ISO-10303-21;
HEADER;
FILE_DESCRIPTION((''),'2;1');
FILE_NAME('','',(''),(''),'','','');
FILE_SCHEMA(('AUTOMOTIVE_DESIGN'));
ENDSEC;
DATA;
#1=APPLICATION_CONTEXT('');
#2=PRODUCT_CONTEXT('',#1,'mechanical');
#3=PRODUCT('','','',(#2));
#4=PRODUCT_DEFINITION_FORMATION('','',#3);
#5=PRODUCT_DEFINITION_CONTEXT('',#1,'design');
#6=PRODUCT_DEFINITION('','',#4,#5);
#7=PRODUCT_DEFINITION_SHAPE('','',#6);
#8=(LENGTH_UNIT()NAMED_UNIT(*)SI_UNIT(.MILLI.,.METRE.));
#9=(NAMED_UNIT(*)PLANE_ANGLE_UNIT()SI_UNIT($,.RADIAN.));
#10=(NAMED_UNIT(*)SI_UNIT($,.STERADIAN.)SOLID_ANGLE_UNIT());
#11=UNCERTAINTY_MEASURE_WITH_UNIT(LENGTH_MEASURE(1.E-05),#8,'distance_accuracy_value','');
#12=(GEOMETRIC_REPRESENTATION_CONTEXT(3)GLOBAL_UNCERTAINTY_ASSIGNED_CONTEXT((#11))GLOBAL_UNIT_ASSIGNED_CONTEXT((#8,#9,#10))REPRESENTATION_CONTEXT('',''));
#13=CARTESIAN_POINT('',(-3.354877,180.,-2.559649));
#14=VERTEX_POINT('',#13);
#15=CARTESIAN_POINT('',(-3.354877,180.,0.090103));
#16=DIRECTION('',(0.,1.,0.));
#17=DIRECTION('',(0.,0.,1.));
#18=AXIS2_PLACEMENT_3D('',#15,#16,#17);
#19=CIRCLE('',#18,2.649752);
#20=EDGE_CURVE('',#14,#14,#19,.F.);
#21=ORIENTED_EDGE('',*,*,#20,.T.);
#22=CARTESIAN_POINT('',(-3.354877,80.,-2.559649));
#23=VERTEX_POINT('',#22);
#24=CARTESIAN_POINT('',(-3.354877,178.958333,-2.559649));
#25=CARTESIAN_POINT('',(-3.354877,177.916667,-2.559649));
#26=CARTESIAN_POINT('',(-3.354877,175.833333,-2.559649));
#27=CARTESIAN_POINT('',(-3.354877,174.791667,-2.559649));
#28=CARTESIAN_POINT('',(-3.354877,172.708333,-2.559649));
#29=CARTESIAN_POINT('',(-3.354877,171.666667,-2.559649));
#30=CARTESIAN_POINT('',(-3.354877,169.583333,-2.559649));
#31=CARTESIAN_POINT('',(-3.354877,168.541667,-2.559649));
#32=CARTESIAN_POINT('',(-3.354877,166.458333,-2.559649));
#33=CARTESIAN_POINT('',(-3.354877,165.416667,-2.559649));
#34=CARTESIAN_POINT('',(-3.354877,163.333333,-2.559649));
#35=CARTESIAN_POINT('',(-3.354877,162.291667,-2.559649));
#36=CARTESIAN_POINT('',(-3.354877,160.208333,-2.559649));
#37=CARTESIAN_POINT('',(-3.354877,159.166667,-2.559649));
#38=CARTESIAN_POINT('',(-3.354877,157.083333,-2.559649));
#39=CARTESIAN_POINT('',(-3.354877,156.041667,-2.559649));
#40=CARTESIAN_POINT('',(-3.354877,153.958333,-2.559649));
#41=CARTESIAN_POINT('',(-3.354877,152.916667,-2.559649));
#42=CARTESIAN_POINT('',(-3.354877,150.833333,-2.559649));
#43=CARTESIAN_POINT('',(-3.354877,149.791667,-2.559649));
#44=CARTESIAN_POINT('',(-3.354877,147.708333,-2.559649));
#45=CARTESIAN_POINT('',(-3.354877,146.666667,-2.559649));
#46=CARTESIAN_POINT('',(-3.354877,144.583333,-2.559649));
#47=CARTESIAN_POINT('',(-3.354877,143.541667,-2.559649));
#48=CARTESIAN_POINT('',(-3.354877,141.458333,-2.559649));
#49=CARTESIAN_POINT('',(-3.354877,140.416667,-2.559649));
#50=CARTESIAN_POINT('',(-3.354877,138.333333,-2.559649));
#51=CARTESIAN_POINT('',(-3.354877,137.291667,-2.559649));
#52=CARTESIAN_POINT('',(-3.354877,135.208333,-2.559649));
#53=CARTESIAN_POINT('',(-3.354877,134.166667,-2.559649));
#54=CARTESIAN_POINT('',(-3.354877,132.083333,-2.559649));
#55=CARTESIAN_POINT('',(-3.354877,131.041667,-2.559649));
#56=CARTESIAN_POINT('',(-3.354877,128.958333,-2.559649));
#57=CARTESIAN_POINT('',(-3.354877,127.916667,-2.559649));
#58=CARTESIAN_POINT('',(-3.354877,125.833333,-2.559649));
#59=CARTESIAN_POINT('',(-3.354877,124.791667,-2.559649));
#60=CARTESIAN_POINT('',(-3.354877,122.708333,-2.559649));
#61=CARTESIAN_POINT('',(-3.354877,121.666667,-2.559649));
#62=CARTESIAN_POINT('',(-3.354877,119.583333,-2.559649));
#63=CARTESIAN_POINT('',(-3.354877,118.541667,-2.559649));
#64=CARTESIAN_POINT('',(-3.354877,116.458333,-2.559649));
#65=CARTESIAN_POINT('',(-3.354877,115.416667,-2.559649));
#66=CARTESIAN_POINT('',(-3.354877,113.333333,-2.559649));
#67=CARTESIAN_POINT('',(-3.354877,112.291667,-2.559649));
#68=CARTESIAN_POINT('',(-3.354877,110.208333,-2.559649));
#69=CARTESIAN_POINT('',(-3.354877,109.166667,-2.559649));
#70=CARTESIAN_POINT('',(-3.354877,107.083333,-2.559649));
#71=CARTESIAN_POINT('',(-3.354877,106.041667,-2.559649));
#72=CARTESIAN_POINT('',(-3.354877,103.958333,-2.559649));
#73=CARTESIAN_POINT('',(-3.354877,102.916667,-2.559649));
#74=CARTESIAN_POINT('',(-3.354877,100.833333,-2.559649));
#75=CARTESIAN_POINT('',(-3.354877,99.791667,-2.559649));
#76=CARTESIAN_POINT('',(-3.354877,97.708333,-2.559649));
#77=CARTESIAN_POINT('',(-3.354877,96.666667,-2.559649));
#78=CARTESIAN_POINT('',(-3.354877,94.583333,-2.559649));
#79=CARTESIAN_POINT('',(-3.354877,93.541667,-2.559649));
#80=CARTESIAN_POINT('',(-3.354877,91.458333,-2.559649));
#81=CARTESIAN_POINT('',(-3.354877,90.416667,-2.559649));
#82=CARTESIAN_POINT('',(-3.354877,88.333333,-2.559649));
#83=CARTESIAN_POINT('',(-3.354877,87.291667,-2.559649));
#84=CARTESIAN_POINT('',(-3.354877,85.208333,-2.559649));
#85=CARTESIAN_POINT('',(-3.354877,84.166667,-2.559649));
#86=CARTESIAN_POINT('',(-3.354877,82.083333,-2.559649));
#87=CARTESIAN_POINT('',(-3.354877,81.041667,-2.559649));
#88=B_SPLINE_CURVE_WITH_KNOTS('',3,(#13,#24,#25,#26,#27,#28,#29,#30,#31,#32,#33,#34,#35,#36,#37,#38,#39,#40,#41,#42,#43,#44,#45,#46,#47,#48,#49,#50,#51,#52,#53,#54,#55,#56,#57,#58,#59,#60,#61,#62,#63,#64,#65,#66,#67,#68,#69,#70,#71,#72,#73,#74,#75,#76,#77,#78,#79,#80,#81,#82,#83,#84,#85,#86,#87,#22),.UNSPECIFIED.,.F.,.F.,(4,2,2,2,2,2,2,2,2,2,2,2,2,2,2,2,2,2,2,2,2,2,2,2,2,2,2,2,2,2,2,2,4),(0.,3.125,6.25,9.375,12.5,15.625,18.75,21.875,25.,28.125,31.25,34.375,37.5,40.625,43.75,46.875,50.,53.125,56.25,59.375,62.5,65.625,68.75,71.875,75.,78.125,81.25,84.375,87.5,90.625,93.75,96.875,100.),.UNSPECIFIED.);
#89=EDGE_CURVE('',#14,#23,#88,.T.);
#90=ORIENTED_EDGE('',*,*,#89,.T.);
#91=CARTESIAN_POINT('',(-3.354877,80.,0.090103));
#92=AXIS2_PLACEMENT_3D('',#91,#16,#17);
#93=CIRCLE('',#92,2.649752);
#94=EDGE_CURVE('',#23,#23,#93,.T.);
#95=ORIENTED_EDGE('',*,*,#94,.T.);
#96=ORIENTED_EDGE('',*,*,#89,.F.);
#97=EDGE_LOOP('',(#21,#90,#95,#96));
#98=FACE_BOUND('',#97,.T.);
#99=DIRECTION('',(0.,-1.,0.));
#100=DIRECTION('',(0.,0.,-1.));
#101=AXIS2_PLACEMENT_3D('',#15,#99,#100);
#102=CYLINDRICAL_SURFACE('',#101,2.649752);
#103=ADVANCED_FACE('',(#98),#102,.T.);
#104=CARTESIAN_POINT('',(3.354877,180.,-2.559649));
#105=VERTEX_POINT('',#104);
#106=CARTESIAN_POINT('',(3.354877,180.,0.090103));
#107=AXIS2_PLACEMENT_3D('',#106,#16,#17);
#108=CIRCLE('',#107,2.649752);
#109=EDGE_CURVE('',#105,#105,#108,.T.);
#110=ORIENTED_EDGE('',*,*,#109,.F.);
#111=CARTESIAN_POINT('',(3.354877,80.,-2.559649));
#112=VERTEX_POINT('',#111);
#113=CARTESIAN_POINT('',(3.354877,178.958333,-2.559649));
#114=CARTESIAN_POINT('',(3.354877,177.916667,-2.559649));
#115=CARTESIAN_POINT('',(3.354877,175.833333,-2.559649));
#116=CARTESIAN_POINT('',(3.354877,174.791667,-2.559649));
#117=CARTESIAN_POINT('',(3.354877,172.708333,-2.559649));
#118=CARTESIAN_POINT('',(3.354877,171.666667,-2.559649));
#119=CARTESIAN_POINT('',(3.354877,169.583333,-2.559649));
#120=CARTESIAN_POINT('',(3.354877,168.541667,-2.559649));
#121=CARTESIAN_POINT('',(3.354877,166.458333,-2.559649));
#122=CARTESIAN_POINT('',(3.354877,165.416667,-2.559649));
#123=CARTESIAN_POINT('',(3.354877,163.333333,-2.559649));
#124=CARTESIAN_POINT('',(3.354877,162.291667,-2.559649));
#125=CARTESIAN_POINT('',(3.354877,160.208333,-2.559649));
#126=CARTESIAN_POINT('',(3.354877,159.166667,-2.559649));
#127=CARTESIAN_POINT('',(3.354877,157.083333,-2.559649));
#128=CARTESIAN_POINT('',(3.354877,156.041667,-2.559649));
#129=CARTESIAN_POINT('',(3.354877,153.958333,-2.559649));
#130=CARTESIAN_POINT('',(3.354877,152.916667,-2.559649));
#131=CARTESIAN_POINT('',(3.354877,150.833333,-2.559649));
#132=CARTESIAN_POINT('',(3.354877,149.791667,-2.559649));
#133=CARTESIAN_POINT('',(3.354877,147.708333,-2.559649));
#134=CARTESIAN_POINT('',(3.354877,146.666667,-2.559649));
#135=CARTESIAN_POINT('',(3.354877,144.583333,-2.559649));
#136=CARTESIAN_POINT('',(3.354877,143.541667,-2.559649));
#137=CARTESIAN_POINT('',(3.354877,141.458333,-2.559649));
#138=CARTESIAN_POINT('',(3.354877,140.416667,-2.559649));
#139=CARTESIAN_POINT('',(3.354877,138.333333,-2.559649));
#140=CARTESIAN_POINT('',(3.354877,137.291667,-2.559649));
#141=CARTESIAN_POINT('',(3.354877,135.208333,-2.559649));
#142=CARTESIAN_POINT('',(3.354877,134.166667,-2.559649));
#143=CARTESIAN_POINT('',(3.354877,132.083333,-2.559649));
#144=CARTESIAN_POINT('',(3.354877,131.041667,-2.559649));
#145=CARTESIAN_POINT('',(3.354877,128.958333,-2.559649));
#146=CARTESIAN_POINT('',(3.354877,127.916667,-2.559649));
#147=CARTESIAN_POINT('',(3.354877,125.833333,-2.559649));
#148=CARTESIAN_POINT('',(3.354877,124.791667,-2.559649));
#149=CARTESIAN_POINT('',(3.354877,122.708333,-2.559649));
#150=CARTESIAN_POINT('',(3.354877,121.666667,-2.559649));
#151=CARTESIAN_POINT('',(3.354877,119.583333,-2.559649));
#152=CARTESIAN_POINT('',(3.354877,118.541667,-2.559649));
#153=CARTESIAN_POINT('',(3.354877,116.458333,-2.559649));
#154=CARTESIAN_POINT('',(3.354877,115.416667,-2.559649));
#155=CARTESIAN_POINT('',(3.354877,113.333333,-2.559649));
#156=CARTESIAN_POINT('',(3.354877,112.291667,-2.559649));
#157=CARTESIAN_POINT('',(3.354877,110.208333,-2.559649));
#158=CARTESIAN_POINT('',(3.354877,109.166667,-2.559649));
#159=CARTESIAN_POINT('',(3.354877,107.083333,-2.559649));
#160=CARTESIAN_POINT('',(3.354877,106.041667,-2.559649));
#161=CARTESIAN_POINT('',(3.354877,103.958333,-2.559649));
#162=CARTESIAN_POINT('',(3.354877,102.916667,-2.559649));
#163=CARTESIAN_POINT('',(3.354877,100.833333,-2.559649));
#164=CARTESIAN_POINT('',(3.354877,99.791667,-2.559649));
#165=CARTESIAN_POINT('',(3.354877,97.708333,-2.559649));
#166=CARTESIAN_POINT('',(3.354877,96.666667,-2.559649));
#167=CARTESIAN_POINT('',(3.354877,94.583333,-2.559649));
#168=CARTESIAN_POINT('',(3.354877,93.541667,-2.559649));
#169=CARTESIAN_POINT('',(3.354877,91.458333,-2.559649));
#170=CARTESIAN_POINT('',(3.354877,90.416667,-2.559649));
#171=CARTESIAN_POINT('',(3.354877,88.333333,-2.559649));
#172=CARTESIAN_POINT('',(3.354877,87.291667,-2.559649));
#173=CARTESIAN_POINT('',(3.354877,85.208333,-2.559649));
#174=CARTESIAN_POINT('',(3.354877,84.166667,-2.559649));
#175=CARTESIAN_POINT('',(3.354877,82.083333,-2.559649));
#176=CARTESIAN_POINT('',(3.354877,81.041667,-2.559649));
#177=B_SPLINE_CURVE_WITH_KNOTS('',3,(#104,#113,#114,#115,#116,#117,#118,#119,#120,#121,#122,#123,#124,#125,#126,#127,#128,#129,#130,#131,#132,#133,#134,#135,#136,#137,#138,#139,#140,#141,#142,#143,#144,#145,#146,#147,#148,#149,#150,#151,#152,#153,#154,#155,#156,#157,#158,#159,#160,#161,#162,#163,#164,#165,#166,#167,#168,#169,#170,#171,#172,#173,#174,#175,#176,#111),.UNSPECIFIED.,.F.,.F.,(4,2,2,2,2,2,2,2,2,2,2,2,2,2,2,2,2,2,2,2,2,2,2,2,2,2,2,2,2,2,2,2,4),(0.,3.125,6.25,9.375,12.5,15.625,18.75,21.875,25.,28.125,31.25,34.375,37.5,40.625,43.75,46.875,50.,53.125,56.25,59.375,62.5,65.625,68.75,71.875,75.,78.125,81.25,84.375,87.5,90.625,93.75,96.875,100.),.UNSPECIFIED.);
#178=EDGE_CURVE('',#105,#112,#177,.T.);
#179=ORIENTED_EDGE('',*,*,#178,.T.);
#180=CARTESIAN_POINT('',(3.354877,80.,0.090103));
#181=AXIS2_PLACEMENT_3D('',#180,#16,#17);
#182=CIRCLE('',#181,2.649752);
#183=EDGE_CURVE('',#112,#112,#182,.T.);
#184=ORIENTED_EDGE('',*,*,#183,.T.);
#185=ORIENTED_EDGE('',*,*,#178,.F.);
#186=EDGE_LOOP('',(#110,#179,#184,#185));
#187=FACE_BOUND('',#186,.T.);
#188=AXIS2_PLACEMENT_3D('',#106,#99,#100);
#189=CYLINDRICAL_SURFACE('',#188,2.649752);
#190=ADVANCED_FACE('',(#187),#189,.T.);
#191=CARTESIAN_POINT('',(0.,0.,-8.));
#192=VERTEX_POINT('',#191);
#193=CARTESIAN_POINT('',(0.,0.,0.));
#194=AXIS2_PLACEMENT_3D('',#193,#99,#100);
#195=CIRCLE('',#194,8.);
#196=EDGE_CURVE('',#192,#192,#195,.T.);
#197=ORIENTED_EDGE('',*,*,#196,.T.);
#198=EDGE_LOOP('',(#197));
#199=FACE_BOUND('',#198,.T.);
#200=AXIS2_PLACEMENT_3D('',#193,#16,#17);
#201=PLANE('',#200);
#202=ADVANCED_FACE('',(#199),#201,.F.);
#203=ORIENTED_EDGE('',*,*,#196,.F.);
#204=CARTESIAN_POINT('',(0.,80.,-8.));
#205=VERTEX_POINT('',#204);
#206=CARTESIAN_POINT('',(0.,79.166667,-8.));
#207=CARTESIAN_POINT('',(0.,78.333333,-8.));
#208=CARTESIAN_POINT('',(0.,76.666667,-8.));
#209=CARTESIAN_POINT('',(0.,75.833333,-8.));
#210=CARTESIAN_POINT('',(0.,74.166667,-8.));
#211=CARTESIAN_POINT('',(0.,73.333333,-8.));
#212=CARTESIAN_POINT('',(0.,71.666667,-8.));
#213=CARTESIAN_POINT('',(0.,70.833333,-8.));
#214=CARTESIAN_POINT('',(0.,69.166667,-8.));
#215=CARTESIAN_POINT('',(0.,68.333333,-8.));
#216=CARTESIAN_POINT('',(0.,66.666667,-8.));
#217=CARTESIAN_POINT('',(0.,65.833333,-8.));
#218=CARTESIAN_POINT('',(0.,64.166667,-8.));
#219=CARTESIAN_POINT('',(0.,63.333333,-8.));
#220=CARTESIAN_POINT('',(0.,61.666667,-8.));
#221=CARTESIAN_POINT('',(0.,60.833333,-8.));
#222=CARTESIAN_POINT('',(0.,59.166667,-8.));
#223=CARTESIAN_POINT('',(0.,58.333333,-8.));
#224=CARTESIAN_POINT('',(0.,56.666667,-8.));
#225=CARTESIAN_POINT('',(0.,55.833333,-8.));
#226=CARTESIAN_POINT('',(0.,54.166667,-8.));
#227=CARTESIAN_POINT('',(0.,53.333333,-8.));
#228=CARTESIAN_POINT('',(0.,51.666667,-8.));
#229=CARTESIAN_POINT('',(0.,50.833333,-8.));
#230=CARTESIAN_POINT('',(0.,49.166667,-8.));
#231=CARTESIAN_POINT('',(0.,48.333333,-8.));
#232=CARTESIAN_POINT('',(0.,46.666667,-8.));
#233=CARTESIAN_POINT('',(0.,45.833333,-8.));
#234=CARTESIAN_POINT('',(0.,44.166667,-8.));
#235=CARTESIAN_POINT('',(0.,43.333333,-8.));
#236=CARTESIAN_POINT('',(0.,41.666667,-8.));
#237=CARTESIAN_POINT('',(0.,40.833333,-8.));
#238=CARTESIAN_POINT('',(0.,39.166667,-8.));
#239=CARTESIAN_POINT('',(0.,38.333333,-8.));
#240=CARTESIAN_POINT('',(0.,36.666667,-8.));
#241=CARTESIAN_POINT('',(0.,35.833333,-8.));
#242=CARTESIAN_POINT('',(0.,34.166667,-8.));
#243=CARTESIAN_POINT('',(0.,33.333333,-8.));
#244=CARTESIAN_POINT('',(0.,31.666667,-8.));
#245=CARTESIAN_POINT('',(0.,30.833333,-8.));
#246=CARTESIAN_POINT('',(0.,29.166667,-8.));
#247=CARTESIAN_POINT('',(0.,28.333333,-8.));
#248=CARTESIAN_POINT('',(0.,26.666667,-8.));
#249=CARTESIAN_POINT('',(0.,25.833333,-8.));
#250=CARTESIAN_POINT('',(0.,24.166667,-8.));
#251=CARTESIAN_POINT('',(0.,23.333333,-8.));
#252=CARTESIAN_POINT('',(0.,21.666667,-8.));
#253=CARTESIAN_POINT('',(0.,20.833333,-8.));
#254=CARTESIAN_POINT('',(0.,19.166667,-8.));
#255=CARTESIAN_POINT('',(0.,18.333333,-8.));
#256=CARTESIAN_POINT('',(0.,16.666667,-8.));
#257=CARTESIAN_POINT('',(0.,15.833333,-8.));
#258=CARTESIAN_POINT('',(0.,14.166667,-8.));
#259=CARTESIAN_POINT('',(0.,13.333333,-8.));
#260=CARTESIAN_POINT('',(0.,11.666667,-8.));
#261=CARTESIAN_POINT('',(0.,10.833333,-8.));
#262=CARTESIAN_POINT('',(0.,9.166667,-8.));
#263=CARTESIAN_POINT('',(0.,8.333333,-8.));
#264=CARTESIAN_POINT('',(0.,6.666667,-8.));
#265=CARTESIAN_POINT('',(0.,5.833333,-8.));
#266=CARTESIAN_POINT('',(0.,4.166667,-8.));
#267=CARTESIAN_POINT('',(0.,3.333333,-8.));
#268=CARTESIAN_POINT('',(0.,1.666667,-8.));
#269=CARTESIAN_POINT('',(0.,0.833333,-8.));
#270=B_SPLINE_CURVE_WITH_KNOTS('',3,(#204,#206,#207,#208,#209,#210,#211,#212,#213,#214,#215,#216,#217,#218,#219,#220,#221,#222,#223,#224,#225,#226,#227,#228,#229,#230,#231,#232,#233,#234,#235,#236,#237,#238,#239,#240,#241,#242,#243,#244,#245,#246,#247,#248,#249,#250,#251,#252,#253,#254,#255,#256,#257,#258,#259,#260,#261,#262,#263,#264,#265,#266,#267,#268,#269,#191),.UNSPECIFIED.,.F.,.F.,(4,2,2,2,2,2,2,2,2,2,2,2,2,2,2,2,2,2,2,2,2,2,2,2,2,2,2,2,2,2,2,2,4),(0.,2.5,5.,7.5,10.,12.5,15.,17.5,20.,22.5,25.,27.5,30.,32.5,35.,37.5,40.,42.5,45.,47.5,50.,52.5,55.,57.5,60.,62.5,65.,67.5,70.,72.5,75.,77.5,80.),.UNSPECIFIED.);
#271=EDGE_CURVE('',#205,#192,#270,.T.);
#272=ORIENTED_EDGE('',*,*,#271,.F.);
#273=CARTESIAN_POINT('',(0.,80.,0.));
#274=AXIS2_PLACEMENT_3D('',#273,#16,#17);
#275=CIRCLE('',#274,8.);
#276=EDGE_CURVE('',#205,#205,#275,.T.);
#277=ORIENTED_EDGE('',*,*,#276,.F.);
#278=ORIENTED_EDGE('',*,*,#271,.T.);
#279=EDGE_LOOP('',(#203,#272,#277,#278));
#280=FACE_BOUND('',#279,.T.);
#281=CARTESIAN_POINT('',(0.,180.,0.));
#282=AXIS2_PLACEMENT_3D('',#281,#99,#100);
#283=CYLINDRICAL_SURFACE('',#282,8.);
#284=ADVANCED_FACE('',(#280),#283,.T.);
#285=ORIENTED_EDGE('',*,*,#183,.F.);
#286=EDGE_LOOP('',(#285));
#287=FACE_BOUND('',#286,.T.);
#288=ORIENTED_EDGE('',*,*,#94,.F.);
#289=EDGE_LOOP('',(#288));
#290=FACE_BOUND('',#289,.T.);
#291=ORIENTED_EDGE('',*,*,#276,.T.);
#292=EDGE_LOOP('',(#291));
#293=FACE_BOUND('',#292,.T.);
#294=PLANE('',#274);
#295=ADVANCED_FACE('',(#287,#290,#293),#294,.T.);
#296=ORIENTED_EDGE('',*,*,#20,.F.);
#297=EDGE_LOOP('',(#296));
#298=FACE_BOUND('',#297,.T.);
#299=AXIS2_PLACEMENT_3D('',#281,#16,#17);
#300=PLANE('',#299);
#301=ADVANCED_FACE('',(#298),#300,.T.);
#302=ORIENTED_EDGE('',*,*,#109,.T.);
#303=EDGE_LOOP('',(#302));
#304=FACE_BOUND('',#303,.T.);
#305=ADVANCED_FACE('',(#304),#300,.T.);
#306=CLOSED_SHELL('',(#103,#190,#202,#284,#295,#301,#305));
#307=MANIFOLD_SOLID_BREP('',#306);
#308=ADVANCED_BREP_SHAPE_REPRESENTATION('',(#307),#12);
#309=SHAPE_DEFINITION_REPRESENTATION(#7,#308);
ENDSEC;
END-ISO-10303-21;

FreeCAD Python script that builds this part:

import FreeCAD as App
import Part
import Sketcher

V = App.Vector
Q = App.Units.Quantity

doc = App.newDocument("Part")
body = doc.addObject("PartDesign::Body", "Body")

sketch1 = body.newObject("Sketcher::SketchObject", "Sketch")
sketch1.AttachmentSupport = (doc.getObject("XZ_Plane"), [""])
sketch1.MapMode = "FlatFace"
sketch1.addGeometry(Part.Circle(V(0, 0, 0), V(0, 0, 1), 10), False)
sketch1.addConstraint(Sketcher.Constraint("Coincident", 0, 3, -1, 1))
sketch1.addConstraint(Sketcher.Constraint("Diameter", 0, Q("21 mm")))
pad1 = body.newObject("PartDesign::Pad", "Pad")
pad1.Profile = sketch1
pad1.Length = 80
pad1.Reversed = True

sketch2 = body.newObject("Sketcher::SketchObject", "Sketch001")
sketch2.AttachmentSupport = (doc.getObject("XZ_Plane"), [""])
sketch2.MapMode = "FlatFace"
sketch2.AttachmentOffset = App.Placement(V(0, 0, -80), App.Rotation())
sketch2.addGeometry(Part.Circle(V(-3.4, 0.1, 0), V(0, 0, 1), 2.6), False)
sketch2.addGeometry(Part.Circle(V(3.4, 0.1, 0), V(0, 0, 1), 2.6), False)
sketch2.addConstraint(Sketcher.Constraint("Equal", 0, 1))
sketch2.addConstraint(Sketcher.Constraint("Symmetric", 0, 3, 1, 3, -2))
sketch2.addConstraint(Sketcher.Constraint("Diameter", 0, Q("5.299504 mm")))
sketch2.addConstraint(Sketcher.Constraint("DistanceX", 0, 3, -1, 1, Q("3.354877 mm")))
sketch2.addConstraint(Sketcher.Constraint("DistanceY", -1, 1, 0, 3, Q("0.090103 mm")))
pad2 = body.newObject("PartDesign::Pad", "Pad001")
pad2.Profile = sketch2
pad2.Length = 100
pad2.Reversed = True

sketch3 = body.newObject("Sketcher::SketchObject", "Sketch002")
sketch3.AttachmentSupport = (doc.getObject("XZ_Plane"), [""])
sketch3.MapMode = "FlatFace"
sketch3.addGeometry(Part.Circle(V(0, 0, 0), V(0, 0, 1), 10), False)
sketch3.addGeometry(Part.Circle(V(0, 0, 0), V(0, 0, 1), 8), False)
sketch3.addConstraint(Sketcher.Constraint("Coincident", 0, 3, -1, 1))
sketch3.addConstraint(Sketcher.Constraint("Coincident", 1, 3, -1, 1))
sketch3.addConstraint(Sketcher.Constraint("Diameter", 0, Q("21 mm")))
sketch3.addConstraint(Sketcher.Constraint("Diameter", 1, Q("16 mm")))
pocket1 = body.newObject("PartDesign::Pocket", "Pocket")
pocket1.Profile = sketch3
pocket1.Type = "ThroughAll"

doc.recompute()
